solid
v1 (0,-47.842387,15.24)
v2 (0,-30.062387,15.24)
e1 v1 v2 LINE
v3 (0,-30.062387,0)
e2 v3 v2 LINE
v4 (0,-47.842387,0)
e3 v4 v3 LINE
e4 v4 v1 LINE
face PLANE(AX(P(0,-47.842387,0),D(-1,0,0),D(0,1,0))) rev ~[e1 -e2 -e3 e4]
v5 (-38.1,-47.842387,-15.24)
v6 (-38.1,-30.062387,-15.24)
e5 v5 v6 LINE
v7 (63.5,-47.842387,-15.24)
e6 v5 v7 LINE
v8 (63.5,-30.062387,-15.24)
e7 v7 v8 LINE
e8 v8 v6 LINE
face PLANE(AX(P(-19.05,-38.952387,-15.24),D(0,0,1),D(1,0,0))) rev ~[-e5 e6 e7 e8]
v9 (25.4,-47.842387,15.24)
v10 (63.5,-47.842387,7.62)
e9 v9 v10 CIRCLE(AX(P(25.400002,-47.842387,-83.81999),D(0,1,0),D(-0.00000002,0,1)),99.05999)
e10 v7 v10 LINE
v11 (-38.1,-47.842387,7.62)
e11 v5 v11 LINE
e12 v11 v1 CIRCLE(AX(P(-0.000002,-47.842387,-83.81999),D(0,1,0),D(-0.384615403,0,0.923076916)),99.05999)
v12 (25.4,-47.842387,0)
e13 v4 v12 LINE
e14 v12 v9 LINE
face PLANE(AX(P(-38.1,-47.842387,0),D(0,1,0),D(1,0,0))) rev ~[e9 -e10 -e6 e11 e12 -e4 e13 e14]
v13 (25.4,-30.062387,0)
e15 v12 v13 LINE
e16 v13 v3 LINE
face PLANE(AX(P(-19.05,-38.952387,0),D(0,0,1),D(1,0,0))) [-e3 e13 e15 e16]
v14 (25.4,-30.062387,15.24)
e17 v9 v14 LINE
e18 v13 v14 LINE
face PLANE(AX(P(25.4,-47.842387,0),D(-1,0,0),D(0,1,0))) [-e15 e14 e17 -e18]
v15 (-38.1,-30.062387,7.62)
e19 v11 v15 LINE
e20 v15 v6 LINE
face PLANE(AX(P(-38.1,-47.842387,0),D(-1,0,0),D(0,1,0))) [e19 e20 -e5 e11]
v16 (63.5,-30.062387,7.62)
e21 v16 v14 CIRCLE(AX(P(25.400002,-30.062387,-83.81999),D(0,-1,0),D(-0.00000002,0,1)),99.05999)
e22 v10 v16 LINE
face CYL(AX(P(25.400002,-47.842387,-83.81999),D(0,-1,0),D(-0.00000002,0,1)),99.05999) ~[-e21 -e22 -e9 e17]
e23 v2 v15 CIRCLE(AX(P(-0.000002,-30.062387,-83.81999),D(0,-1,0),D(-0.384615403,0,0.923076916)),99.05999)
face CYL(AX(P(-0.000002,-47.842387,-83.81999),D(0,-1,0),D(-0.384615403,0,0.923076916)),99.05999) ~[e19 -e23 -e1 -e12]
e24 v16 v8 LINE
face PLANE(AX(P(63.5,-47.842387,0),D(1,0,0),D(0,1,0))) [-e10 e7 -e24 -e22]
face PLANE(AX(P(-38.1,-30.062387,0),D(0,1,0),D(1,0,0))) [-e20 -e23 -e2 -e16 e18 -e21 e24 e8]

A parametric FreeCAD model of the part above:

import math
import FreeCAD as App
import Part
import Sketcher
Q = App.Units.Quantity

doc = App.newDocument("Part")
body = doc.addObject("PartDesign::Body", "Body")

sketch1 = doc.addObject("Sketcher::SketchObject", "Sketch")
body.addObject(sketch1)
sketch1.AttachmentSupport = (doc.XY_Plane, [""])
sketch1.MapMode = "FlatFace"
sketch1.addGeometry(Part.LineSegment(App.Vector(-38, -30, 0), App.Vector(-38, -48, 0)), False)
sketch1.addGeometry(Part.LineSegment(App.Vector(-38, -48, 0), App.Vector(64, -48, 0)), False)
sketch1.addGeometry(Part.LineSegment(App.Vector(64, -48, 0), App.Vector(64, -30, 0)), False)
sketch1.addGeometry(Part.LineSegment(App.Vector(64, -30, 0), App.Vector(-38, -30, 0)), False)
sketch1.addConstraint(Sketcher.Constraint("Coincident", 0, 2, 1, 1))
sketch1.addConstraint(Sketcher.Constraint("Coincident", 1, 2, 2, 1))
sketch1.addConstraint(Sketcher.Constraint("Coincident", 2, 2, 3, 1))
sketch1.addConstraint(Sketcher.Constraint("Coincident", 3, 2, 0, 1))
sketch1.addConstraint(Sketcher.Constraint("Vertical", 0))
sketch1.addConstraint(Sketcher.Constraint("Horizontal", 1))
sketch1.addConstraint(Sketcher.Constraint("Vertical", 2))
sketch1.addConstraint(Sketcher.Constraint("Horizontal", 3))
sketch1.addConstraint(Sketcher.Constraint("DistanceX", 1, 1, 1, 2, Q("4 in")))
sketch1.addConstraint(Sketcher.Constraint("DistanceY", 0, 2, 0, 1, Q("0.7 in")))
sketch1.addConstraint(Sketcher.Constraint("DistanceX", 0, 2, -1, 1, Q("1.5 in")))
sketch1.addConstraint(Sketcher.Constraint("DistanceY", 0, 2, -1, 1, Q("47.842387 mm")))
pad1 = doc.addObject("PartDesign::Pad", "Pad")
body.addObject(pad1)
pad1.Profile = sketch1
pad1.Length = Q("0.6 in")
pad1.Reversed = True

sketch2 = doc.addObject("Sketcher::SketchObject", "Sketch001")
body.addObject(sketch2)
sketch2.AttachmentSupport = (doc.XY_Plane, [""])
sketch2.MapMode = "FlatFace"
sketch2.addGeometry(Part.LineSegment(App.Vector(-38, -30, 0), App.Vector(-38, -48, 0)), False)
sketch2.addGeometry(Part.LineSegment(App.Vector(-38, -48, 0), App.Vector(0, -48, 0)), False)
sketch2.addGeometry(Part.LineSegment(App.Vector(0, -48, 0), App.Vector(0, -30, 0)), False)
sketch2.addGeometry(Part.LineSegment(App.Vector(0, -30, 0), App.Vector(-38, -30, 0)), False)
sketch2.addGeometry(Part.LineSegment(App.Vector(25, -30, 0), App.Vector(25, -48, 0)), False)
sketch2.addGeometry(Part.LineSegment(App.Vector(25, -48, 0), App.Vector(64, -48, 0)), False)
sketch2.addGeometry(Part.LineSegment(App.Vector(64, -48, 0), App.Vector(64, -30, 0)), False)
sketch2.addGeometry(Part.LineSegment(App.Vector(64, -30, 0), App.Vector(25, -30, 0)), False)
sketch2.addConstraint(Sketcher.Constraint("Coincident", 0, 2, 1, 1))
sketch2.addConstraint(Sketcher.Constraint("Coincident", 1, 2, 2, 1))
sketch2.addConstraint(Sketcher.Constraint("Coincident", 2, 2, 3, 1))
sketch2.addConstraint(Sketcher.Constraint("Coincident", 3, 2, 0, 1))
sketch2.addConstraint(Sketcher.Constraint("Coincident", 4, 2, 5, 1))
sketch2.addConstraint(Sketcher.Constraint("Coincident", 5, 2, 6, 1))
sketch2.addConstraint(Sketcher.Constraint("Coincident", 6, 2, 7, 1))
sketch2.addConstraint(Sketcher.Constraint("Coincident", 7, 2, 4, 1))
sketch2.addConstraint(Sketcher.Constraint("Vertical", 0))
sketch2.addConstraint(Sketcher.Constraint("Horizontal", 1))
sketch2.addConstraint(Sketcher.Constraint("Vertical", 2))
sketch2.addConstraint(Sketcher.Constraint("Horizontal", 3))
sketch2.addConstraint(Sketcher.Constraint("Vertical", 4))
sketch2.addConstraint(Sketcher.Constraint("Horizontal", 5))
sketch2.addConstraint(Sketcher.Constraint("Vertical", 6))
sketch2.addConstraint(Sketcher.Constraint("Horizontal", 7))
sketch2.addConstraint(Sketcher.Constraint("PointOnObject", 1, 2, -2))
sketch2.addConstraint(Sketcher.Constraint("Horizontal", 1, 2, 4, 2))
sketch2.addConstraint(Sketcher.Constraint("Horizontal", 3, 2, 6, 2))
sketch2.addConstraint(Sketcher.Constraint("Equal", 3, 5))
sketch2.addConstraint(Sketcher.Constraint("DistanceX", 1, 1, 1, 2, Q("1.5 in")))
sketch2.addConstraint(Sketcher.Constraint("DistanceY", 0, 2, 0, 1, Q("0.7 in")))
sketch2.addConstraint(Sketcher.Constraint("DistanceX", -1, 1, 4, 2, Q("1 in")))
sketch2.addConstraint(Sketcher.Constraint("DistanceY", 0, 2, -1, 1, Q("47.842387 mm")))
pad2 = doc.addObject("PartDesign::Pad", "Pad001")
body.addObject(pad2)
pad2.Profile = sketch2
pad2.Length = Q("0.6 in")

sketch3 = doc.addObject("Sketcher::SketchObject", "Sketch002")
body.addObject(sketch3)
sketch3.AttachmentSupport = (doc.XZ_Plane, [""])
sketch3.MapMode = "FlatFace"
sketch3.AttachmentOffset = App.Placement(App.Vector(0, 0, 47.842387), App.Rotation())
sketch3.addGeometry(Part.ArcOfCircle(Part.Circle(App.Vector(0, -84, 0), App.Vector(0, 0, 1), 99), math.radians(90), math.radians(113)), False)
sketch3.addGeometry(Part.LineSegment(App.Vector(0, 15, 0), App.Vector(-38, 15, 0)), False)
sketch3.addGeometry(Part.LineSegment(App.Vector(-38, 15, 0), App.Vector(-38, 8, 0)), False)
sketch3.addGeometry(Part.LineSegment(App.Vector(64, 15, 0), App.Vector(25, 15, 0)), False)
sketch3.addGeometry(Part.ArcOfCircle(Part.Circle(App.Vector(25, -84, 0), App.Vector(0, 0, 1), 99), math.radians(67), math.radians(90)), False)
sketch3.addGeometry(Part.LineSegment(App.Vector(64, 8, 0), App.Vector(64, 15, 0)), False)
sketch3.addConstraint(Sketcher.Constraint("Tangent", 0, 1, 1, 1))
sketch3.addConstraint(Sketcher.Constraint("Coincident", 1, 2, 2, 1))
sketch3.addConstraint(Sketcher.Constraint("Coincident", 2, 2, 0, 2))
sketch3.addConstraint(Sketcher.Constraint("Tangent", 3, 2, 4, 2))
sketch3.addConstraint(Sketcher.Constraint("Coincident", 4, 1, 5, 1))
sketch3.addConstraint(Sketcher.Constraint("Coincident", 5, 2, 3, 1))
sketch3.addConstraint(Sketcher.Constraint("Horizontal", 1))
sketch3.addConstraint(Sketcher.Constraint("Vertical", 2))
sketch3.addConstraint(Sketcher.Constraint("Horizontal", 3))
sketch3.addConstraint(Sketcher.Constraint("Vertical", 5))
sketch3.addConstraint(Sketcher.Constraint("Equal", 0, 4))
sketch3.addConstraint(Sketcher.Constraint("PointOnObject", 0, 3, -2))
sketch3.addConstraint(Sketcher.Constraint("Horizontal", 0, 3, 4, 3))
sketch3.addConstraint(Sketcher.Constraint("Horizontal", 2, 2, 4, 1))
sketch3.addConstraint(Sketcher.Constraint("DistanceX", 1, 2, 1, 1, Q("1.5 in")))
sketch3.addConstraint(Sketcher.Constraint("DistanceY", 2, 2, 2, 1, Q("0.3 in")))
sketch3.addConstraint(Sketcher.Constraint("DistanceX", -1, 1, 4, 3, Q("1.0000001 in")))
sketch3.addConstraint(Sketcher.Constraint("DistanceY", -1, 1, 0, 1, Q("0.6 in")))
pocket1 = doc.addObject("PartDesign::Pocket", "Pocket")
body.addObject(pocket1)
pocket1.Profile = sketch3
pocket1.Length = Q("1 in")

doc.recompute()
